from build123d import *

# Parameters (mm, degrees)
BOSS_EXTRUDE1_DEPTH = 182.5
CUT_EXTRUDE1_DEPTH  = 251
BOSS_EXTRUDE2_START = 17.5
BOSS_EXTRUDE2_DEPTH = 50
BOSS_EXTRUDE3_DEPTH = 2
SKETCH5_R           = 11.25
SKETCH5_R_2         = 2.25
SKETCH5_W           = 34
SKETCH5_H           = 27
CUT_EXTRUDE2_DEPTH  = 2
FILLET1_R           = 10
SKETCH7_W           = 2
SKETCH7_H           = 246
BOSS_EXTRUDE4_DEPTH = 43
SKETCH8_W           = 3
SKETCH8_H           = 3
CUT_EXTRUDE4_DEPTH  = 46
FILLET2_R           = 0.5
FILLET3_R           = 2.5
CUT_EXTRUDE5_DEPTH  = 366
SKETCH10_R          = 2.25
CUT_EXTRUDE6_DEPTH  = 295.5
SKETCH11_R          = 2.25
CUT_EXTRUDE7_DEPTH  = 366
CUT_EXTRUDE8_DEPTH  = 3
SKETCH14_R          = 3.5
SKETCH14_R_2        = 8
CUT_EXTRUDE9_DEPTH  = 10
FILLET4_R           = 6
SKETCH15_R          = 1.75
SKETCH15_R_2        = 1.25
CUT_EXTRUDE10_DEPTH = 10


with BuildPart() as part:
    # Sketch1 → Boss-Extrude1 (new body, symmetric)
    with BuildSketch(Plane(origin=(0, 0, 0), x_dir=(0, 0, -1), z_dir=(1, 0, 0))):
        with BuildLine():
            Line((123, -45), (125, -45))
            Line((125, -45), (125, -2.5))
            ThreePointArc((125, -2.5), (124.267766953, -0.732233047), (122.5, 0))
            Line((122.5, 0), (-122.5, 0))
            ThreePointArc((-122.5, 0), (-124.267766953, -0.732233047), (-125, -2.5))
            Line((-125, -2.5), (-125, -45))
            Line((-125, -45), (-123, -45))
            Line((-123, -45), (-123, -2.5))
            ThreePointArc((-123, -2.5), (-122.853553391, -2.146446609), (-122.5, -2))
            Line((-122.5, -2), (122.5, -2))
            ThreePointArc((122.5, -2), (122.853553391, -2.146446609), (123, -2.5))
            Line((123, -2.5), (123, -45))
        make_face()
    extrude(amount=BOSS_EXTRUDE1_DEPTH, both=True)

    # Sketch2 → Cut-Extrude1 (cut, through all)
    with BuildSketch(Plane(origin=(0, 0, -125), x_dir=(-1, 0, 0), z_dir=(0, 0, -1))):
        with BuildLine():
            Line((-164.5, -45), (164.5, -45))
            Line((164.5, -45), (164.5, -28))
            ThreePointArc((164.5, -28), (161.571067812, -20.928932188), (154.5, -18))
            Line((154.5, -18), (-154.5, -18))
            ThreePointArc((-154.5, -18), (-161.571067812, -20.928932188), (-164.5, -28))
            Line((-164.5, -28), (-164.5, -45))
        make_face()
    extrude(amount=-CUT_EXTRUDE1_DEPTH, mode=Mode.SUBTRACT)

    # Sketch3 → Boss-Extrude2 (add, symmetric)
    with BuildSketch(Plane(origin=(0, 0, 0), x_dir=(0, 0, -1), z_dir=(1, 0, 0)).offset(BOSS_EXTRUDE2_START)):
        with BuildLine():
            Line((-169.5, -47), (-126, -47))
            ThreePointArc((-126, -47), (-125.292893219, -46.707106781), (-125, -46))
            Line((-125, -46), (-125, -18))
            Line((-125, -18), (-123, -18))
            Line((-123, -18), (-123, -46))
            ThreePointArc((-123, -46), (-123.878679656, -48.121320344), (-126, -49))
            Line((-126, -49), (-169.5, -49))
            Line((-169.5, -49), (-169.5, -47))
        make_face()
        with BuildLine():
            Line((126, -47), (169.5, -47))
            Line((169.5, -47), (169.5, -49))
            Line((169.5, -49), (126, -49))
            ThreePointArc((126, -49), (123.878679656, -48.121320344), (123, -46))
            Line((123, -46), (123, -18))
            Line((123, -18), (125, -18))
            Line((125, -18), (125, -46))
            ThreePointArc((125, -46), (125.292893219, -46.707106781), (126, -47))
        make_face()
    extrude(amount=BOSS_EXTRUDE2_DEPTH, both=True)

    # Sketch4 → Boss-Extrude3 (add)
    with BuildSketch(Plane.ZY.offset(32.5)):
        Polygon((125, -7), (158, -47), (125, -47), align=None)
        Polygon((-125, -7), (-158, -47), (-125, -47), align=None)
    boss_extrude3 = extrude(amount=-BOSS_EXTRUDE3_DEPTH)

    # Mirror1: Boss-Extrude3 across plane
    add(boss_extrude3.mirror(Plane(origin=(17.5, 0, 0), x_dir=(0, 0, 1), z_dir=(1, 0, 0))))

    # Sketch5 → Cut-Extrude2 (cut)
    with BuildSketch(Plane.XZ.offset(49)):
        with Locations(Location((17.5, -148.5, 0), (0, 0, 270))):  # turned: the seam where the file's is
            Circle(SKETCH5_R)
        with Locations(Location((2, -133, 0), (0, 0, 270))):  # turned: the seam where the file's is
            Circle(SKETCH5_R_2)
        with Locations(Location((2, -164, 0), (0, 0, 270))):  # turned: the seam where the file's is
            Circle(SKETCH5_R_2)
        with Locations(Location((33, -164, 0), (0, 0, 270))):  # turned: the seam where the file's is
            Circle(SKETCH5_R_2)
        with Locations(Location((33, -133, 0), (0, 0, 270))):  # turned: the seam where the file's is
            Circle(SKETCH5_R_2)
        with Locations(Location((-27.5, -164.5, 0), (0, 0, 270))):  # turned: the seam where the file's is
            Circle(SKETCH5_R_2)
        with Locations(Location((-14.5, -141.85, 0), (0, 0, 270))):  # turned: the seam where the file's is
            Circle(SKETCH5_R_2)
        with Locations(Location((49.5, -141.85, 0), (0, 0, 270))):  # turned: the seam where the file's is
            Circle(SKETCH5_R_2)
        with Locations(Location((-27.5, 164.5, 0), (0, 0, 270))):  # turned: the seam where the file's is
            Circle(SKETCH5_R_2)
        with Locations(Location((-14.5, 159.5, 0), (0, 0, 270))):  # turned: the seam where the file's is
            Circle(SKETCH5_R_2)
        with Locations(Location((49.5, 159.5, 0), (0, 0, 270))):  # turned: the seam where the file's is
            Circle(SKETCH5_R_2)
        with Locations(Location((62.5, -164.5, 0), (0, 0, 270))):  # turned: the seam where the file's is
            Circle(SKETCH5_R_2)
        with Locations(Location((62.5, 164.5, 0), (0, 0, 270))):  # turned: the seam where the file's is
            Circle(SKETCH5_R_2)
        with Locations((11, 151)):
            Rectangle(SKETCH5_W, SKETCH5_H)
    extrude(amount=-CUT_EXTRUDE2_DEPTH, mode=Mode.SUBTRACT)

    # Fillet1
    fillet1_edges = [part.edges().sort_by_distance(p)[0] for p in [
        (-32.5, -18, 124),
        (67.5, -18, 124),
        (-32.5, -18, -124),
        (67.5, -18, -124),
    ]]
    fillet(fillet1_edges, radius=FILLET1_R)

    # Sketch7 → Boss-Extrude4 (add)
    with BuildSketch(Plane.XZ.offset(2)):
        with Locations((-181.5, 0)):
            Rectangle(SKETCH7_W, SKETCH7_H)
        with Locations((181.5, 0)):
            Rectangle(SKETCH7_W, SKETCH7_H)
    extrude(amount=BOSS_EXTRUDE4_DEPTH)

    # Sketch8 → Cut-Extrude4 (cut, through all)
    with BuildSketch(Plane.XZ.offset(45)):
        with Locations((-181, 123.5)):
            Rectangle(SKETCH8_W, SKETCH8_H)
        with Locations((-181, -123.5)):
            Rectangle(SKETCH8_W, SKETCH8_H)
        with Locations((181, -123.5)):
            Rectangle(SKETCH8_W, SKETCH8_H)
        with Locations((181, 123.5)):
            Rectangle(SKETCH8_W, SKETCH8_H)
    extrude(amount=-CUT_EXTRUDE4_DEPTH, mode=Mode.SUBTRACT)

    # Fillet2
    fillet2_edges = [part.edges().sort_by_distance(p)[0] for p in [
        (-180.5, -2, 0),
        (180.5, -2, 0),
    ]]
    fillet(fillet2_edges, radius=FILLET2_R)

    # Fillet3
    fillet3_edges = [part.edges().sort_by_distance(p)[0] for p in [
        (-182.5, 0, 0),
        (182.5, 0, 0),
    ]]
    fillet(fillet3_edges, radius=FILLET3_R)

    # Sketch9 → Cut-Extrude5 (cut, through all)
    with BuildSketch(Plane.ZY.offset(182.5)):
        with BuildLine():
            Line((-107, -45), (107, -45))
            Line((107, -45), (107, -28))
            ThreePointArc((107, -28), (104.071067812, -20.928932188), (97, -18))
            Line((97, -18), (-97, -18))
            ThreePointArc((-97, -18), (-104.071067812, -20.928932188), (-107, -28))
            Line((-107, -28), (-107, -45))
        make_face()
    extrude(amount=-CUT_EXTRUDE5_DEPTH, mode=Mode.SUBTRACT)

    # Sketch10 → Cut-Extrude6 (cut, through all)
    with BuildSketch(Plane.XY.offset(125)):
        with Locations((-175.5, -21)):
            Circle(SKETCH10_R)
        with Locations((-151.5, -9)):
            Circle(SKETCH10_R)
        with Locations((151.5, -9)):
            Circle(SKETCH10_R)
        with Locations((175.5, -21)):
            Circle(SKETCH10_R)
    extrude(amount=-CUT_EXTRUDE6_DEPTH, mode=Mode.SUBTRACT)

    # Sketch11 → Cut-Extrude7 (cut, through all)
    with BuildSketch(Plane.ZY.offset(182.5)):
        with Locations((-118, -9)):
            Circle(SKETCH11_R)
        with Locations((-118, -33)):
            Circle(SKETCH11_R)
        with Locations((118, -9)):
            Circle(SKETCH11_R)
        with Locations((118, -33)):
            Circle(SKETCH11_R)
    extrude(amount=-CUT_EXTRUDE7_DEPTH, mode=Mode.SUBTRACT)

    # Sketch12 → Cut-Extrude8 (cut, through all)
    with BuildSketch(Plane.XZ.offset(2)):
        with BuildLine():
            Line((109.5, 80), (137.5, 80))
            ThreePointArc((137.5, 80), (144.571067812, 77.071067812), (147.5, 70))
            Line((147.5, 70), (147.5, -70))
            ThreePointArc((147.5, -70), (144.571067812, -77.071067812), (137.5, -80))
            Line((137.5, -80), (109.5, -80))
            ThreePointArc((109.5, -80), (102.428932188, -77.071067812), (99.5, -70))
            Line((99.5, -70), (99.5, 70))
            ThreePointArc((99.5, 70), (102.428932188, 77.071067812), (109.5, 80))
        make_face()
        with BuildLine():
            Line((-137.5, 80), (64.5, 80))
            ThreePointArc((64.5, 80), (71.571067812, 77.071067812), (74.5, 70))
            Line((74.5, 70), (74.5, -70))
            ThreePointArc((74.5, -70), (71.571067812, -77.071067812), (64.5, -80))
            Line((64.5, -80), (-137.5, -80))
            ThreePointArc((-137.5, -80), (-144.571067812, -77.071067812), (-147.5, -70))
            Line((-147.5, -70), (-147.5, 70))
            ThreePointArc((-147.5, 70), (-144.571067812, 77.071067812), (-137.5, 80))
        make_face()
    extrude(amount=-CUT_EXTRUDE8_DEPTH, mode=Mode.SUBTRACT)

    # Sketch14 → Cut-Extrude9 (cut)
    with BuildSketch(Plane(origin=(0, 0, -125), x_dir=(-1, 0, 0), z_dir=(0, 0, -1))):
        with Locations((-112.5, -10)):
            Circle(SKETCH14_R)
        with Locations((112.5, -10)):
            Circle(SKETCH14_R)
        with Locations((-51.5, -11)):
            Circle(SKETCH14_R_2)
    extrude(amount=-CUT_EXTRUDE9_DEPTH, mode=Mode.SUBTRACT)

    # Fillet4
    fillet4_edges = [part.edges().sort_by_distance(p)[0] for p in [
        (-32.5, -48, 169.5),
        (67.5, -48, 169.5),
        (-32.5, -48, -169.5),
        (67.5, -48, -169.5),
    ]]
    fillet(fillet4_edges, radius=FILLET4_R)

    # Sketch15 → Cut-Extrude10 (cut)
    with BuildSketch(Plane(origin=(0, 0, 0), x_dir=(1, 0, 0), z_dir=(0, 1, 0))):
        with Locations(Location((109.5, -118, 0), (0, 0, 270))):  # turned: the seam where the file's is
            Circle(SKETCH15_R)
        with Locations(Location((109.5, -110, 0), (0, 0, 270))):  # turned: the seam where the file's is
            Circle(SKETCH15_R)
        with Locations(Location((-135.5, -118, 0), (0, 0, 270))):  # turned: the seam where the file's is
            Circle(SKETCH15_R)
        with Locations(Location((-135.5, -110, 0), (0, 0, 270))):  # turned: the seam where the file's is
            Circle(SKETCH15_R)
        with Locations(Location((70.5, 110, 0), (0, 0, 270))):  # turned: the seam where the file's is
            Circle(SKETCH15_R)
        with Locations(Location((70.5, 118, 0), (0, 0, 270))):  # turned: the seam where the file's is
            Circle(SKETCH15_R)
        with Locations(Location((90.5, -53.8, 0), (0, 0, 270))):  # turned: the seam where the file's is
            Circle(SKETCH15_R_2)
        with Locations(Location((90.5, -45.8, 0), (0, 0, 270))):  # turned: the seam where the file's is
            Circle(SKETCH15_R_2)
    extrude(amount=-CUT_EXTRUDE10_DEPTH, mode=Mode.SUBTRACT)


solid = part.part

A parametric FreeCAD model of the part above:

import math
import FreeCAD as App
import Part
import Sketcher

V = App.Vector


def edges_at(feature, points):
    """Names of the edges that pass closest to the given points."""
    edges = feature.Shape.Edges
    near = lambda p: min(range(len(edges)), key=lambda i: edges[i].distToShape(Part.Vertex(*p))[0])
    return sorted({f"Edge{near(p) + 1}" for p in points})

doc = App.newDocument("Part")
params = doc.addObject("Spreadsheet::Sheet", "Params")
for row, (alias, value) in enumerate([
    ("sketch1_radius", "2.5 mm"),
    ("sketch1_radius2", "0.5 mm"),
    ("sketch1_height", "245 mm"),
    ("sketch1_width", "42.5 mm"),
    ("pad1_length", "365 mm"),
    ("sketch2_radius", "10 mm"),
    ("sketch2_width", "329 mm"),
    ("sketch2_height", "17 mm"),
    ("sketch3_radius", "3 mm"),
    ("sketch3_radius2", "1 mm"),
    ("sketch3_width", "28 mm"),
    ("sketch3_height", "43.5 mm"),
    ("pad2_length", "100 mm"),
    ("sketch4_width", "40 mm"),
    ("sketch4_height", "33 mm"),
    ("pad3_length", "2 mm"),
    ("sketch5_diameter", "22.5 mm"),
    ("sketch5_diameter2", "4.5 mm"),
    ("sketch5_width", "34 mm"),
    ("sketch5_height", "27 mm"),
    ("pocket2_length", "2 mm"),
    ("fillet_radius", "10 mm"),
    ("sketch6_width", "2 mm"),
    ("sketch6_height", "246 mm"),
    ("pad4_length", "43 mm"),
    ("sketch7_width", "3 mm"),
    ("fillet2_radius", "0.5 mm"),
    ("fillet3_radius", "2.5 mm"),
    ("sketch8_radius", "10 mm"),
    ("sketch8_width", "17 mm"),
    ("sketch8_height", "214 mm"),
    ("sketch9_diameter", "4.5 mm"),
    ("sketch10_diameter", "4.5 mm"),
    ("sketch11_radius", "10 mm"),
    ("sketch11_width", "28 mm"),
    ("sketch11_width2", "202 mm"),
    ("sketch11_height", "140 mm"),
    ("sketch12_diameter", "7 mm"),
    ("sketch12_diameter2", "16 mm"),
    ("pocket8_length", "10 mm"),
    ("fillet4_radius", "6 mm"),
    ("sketch13_diameter", "3.5 mm"),
    ("sketch13_diameter2", "2.5 mm"),
    ("pocket9_length", "10 mm"),
], start=1):
    params.set(f"A{row}", alias)
    params.set(f"B{row}", "=" + value)
    params.setAlias(f"B{row}", alias)

body = doc.addObject("PartDesign::Body", "Body")

sketch1 = body.newObject("Sketcher::SketchObject", "Sketch")
sketch1.AttachmentSupport = (doc.getObject("YZ_Plane"), [""])
sketch1.MapMode = "FlatFace"
sketch1.addGeometry([
    Part.LineSegment(V(-45, -123, 0), V(-45, -125, 0)),
    Part.LineSegment(V(-45, -125, 0), V(-2.5, -125, 0)),
    Part.ArcOfCircle(Part.Circle(V(-2.5, -122.5, 0), V(0, 0, 1), 2.5), math.radians(-90), math.radians(0)),
    Part.LineSegment(V(0, -122.5, 0), V(0, 122.5, 0)),
    Part.ArcOfCircle(Part.Circle(V(-2.5, 122.5, 0), V(0, 0, 1), 2.5), math.radians(0), math.radians(90)),
    Part.LineSegment(V(-2.5, 125, 0), V(-45, 125, 0)),
    Part.LineSegment(V(-45, 125, 0), V(-45, 123, 0)),
    Part.LineSegment(V(-45, 123, 0), V(-2.5, 123, 0)),
    Part.ArcOfCircle(Part.Circle(V(-2.5, 122.5, 0), V(0, 0, 1), 0.5), math.radians(0), math.radians(90)),
    Part.LineSegment(V(-2, 122.5, 0), V(-2, -122.5, 0)),
    Part.ArcOfCircle(Part.Circle(V(-2.5, -122.5, 0), V(0, 0, 1), 0.5), math.radians(-90), math.radians(0)),
    Part.LineSegment(V(-2.5, -123, 0), V(-45, -123, 0)),
], False)
sketch1.addConstraint([
    Sketcher.Constraint("Coincident", 0, 2, 1, 1),
    Sketcher.Constraint("Tangent", 1, 2, 2, 1),
    Sketcher.Constraint("Tangent", 2, 2, 3, 1),
    Sketcher.Constraint("Tangent", 3, 2, 4, 1),
    Sketcher.Constraint("Tangent", 4, 2, 5, 1),
    Sketcher.Constraint("Coincident", 5, 2, 6, 1),
    Sketcher.Constraint("Coincident", 6, 2, 7, 1),
    Sketcher.Constraint("Tangent", 7, 2, 8, 2),
    Sketcher.Constraint("Tangent", 8, 1, 9, 1),
    Sketcher.Constraint("Tangent", 9, 2, 10, 2),
    Sketcher.Constraint("Tangent", 10, 1, 11, 1),
    Sketcher.Constraint("Coincident", 11, 2, 0, 1),
    Sketcher.Constraint("Vertical", 0),
    Sketcher.Constraint("Horizontal", 1),
    Sketcher.Constraint("Vertical", 3),
    Sketcher.Constraint("Horizontal", 5),
    Sketcher.Constraint("Vertical", 6),
    Sketcher.Constraint("Horizontal", 7),
    Sketcher.Constraint("Vertical", 9),
    Sketcher.Constraint("Horizontal", 11),
    Sketcher.Constraint("Coincident", 8, 3, 4, 3),
    Sketcher.Constraint("Coincident", 10, 3, 2, 3),
    Sketcher.Constraint("Equal", 2, 4),
    Sketcher.Constraint("Symmetric", 2, 2, 3, 2, -1, 1),
    Sketcher.Constraint("Vertical", 0, 2, 5, 2),
    Sketcher.Constraint("Radius", 2, 2.5),
    Sketcher.Constraint("Radius", 8, 0.5),
    Sketcher.Constraint("DistanceY", 3, 1, 3, 2, 245.0),
    Sketcher.Constraint("DistanceX", 1, 1, 1, 2, 42.5),
])
sketch1.setExpression("Constraints[25]", "Params.sketch1_radius")
sketch1.setExpression("Constraints[26]", "Params.sketch1_radius2")
sketch1.setExpression("Constraints[27]", "Params.sketch1_height")
sketch1.setExpression("Constraints[28]", "Params.sketch1_width")
pad1 = body.newObject("PartDesign::Pad", "Pad")
pad1.Profile = sketch1
pad1.setExpression("Length", "Params.pad1_length")
pad1.Midplane = True

sketch2 = body.newObject("Sketcher::SketchObject", "Sketch001")
sketch2.AttachmentSupport = (doc.getObject("XY_Plane"), [""])
sketch2.MapMode = "FlatFace"
sketch2.AttachmentOffset = App.Placement(V(0, 0, -125), App.Rotation())
sketch2.addGeometry([
    Part.LineSegment(V(164, -45, 0), V(-164, -45, 0)),
    Part.LineSegment(V(-164, -45, 0), V(-164, -28, 0)),
    Part.ArcOfCircle(Part.Circle(V(-154, -28, 0), V(0, 0, 1), 10), math.radians(90), math.radians(180)),
    Part.LineSegment(V(-154, -18, 0), V(154, -18, 0)),
    Part.ArcOfCircle(Part.Circle(V(154, -28, 0), V(0, 0, 1), 10), math.radians(0), math.radians(90)),
    Part.LineSegment(V(164, -28, 0), V(164, -45, 0)),
], False)
sketch2.addConstraint([
    Sketcher.Constraint("Coincident", 0, 2, 1, 1),
    Sketcher.Constraint("Tangent", 1, 2, 2, 2),
    Sketcher.Constraint("Tangent", 2, 1, 3, 1),
    Sketcher.Constraint("Tangent", 3, 2, 4, 2),
    Sketcher.Constraint("Tangent", 4, 1, 5, 1),
    Sketcher.Constraint("Coincident", 5, 2, 0, 1),
    Sketcher.Constraint("Horizontal", 0),
    Sketcher.Constraint("Vertical", 1),
    Sketcher.Constraint("Horizontal", 3),
    Sketcher.Constraint("Vertical", 5),
    Sketcher.Constraint("Equal", 2, 4),
    Sketcher.Constraint("Radius", 2, 10.0),
    Sketcher.Constraint("DistanceX", 0, 2, 0, 1, 329.0),
    Sketcher.Constraint("DistanceY", 1, 1, 1, 2, 17.0),
    Sketcher.Constraint("DistanceY", 2, 3, -1, 1, 28.0),
    Sketcher.Constraint("DistanceX", 2, 3, -1, 1, 154.5),
])
sketch2.setExpression("Constraints[11]", "Params.sketch2_radius")
sketch2.setExpression("Constraints[12]", "Params.sketch2_width")
sketch2.setExpression("Constraints[13]", "Params.sketch2_height")
pocket1 = body.newObject("PartDesign::Pocket", "Pocket")
pocket1.Profile = sketch2
pocket1.Type = "ThroughAll"
pocket1.Reversed = True

sketch3 = body.newObject("Sketcher::SketchObject", "Sketch002")
sketch3.AttachmentSupport = (doc.getObject("YZ_Plane"), [""])
sketch3.MapMode = "FlatFace"
sketch3.AttachmentOffset = App.Placement(V(0, 0, 17.5), App.Rotation())
sketch3.addGeometry([
    Part.LineSegment(V(-47, 126, 0), V(-47, 169.5, 0)),
    Part.LineSegment(V(-47, 169.5, 0), V(-49, 169.5, 0)),
    Part.LineSegment(V(-49, 169.5, 0), V(-49, 126, 0)),
    Part.ArcOfCircle(Part.Circle(V(-46, 126, 0), V(0, 0, 1), 3), math.radians(180), math.radians(270)),
    Part.LineSegment(V(-46, 123, 0), V(-18, 123, 0)),
    Part.LineSegment(V(-18, 123, 0), V(-18, 125, 0)),
    Part.LineSegment(V(-18, 125, 0), V(-46, 125, 0)),
    Part.ArcOfCircle(Part.Circle(V(-46, 126, 0), V(0, 0, 1), 1), math.radians(-180), math.radians(-90)),
    Part.LineSegment(V(-47, -169.5, 0), V(-47, -126, 0)),
    Part.ArcOfCircle(Part.Circle(V(-46, -126, 0), V(0, 0, 1), 1), math.radians(90), math.radians(180)),
    Part.LineSegment(V(-46, -125, 0), V(-18, -125, 0)),
    Part.LineSegment(V(-18, -125, 0), V(-18, -123, 0)),
    Part.LineSegment(V(-18, -123, 0), V(-46, -123, 0)),
    Part.ArcOfCircle(Part.Circle(V(-46, -126, 0), V(0, 0, 1), 3), math.radians(90), math.radians(180)),
    Part.LineSegment(V(-49, -126, 0), V(-49, -169.5, 0)),
    Part.LineSegment(V(-49, -169.5, 0), V(-47, -169.5, 0)),
], False)
sketch3.addConstraint([
    Sketcher.Constraint("Coincident", 0, 2, 1, 1),
    Sketcher.Constraint("Coincident", 1, 2, 2, 1),
    Sketcher.Constraint("Tangent", 2, 2, 3, 1),
    Sketcher.Constraint("Tangent", 3, 2, 4, 1),
    Sketcher.Constraint("Coincident", 4, 2, 5, 1),
    Sketcher.Constraint("Coincident", 5, 2, 6, 1),
    Sketcher.Constraint("Tangent", 6, 2, 7, 2),
    Sketcher.Constraint("Tangent", 7, 1, 0, 1),
    Sketcher.Constraint("Tangent", 8, 2, 9, 2),
    Sketcher.Constraint("Tangent", 9, 1, 10, 1),
    Sketcher.Constraint("Coincident", 10, 2, 11, 1),
    Sketcher.Constraint("Coincident", 11, 2, 12, 1),
    Sketcher.Constraint("Tangent", 12, 2, 13, 1),
    Sketcher.Constraint("Tangent", 13, 2, 14, 1),
    Sketcher.Constraint("Coincident", 14, 2, 15, 1),
    Sketcher.Constraint("Coincident", 15, 2, 8, 1),
    Sketcher.Constraint("Vertical", 0),
    Sketcher.Constraint("Horizontal", 1),
    Sketcher.Constraint("Vertical", 2),
    Sketcher.Constraint("Horizontal", 4),
    Sketcher.Constraint("Vertical", 5),
    Sketcher.Constraint("Horizontal", 6),
    Sketcher.Constraint("Vertical", 8),
    Sketcher.Constraint("Horizontal", 10),
    Sketcher.Constraint("Vertical", 11),
    Sketcher.Constraint("Horizontal", 12),
    Sketcher.Constraint("Vertical", 14),
    Sketcher.Constraint("Horizontal", 15),
    Sketcher.Constraint("Coincident", 7, 3, 3, 3),
    Sketcher.Constraint("Coincident", 13, 3, 9, 3),
    Sketcher.Constraint("Equal", 7, 9),
    Sketcher.Constraint("Equal", 3, 13),
    Sketcher.Constraint("Symmetric", 3, 3, 9, 3, -1),
    Sketcher.Constraint("Vertical", 5, 2, 10, 2),
    Sketcher.Constraint("Equal", 2, 8),
    Sketcher.Constraint("Radius", 3, 3.0),
    Sketcher.Constraint("Radius", 7, 1.0),
    Sketcher.Constraint("DistanceX", 4, 1, 4, 2, 28.0),
    Sketcher.Constraint("DistanceY", 0, 1, 0, 2, 43.5),
    Sketcher.Constraint("DistanceX", 3, 3, -1, 1, 46.0),
    Sketcher.Constraint("DistanceY", -1, 1, 3, 3, 126.0),
])
sketch3.setExpression("Constraints[35]", "Params.sketch3_radius")
sketch3.setExpression("Constraints[36]", "Params.sketch3_radius2")
sketch3.setExpression("Constraints[37]", "Params.sketch3_width")
sketch3.setExpression("Constraints[38]", "Params.sketch3_height")
pad2 = body.newObject("PartDesign::Pad", "Pad001")
pad2.Profile = sketch3
pad2.setExpression("Length", "Params.pad2_length")
pad2.Midplane = True

sketch4 = body.newObject("Sketcher::SketchObject", "Sketch003")
sketch4.AttachmentSupport = (doc.getObject("YZ_Plane"), [""])
sketch4.MapMode = "FlatFace"
sketch4.AttachmentOffset = App.Placement(V(0, 0, -32.5), App.Rotation())
sketch4.addGeometry([
    Part.LineSegment(V(-47, 158, 0), V(-7, 125, 0)),
    Part.LineSegment(V(-7, 125, 0), V(-47, 125, 0)),
    Part.LineSegment(V(-47, 125, 0), V(-47, 158, 0)),
    Part.LineSegment(V(-7, -125, 0), V(-47, -158, 0)),
    Part.LineSegment(V(-47, -158, 0), V(-47, -125, 0)),
    Part.LineSegment(V(-47, -125, 0), V(-7, -125, 0)),
], False)
sketch4.addConstraint([
    Sketcher.Constraint("Coincident", 0, 2, 1, 1),
    Sketcher.Constraint("Coincident", 1, 2, 2, 1),
    Sketcher.Constraint("Coincident", 2, 2, 0, 1),
    Sketcher.Constraint("Coincident", 3, 2, 4, 1),
    Sketcher.Constraint("Coincident", 4, 2, 5, 1),
    Sketcher.Constraint("Coincident", 5, 2, 3, 1),
    Sketcher.Constraint("Horizontal", 1),
    Sketcher.Constraint("Vertical", 2),
    Sketcher.Constraint("Vertical", 4),
    Sketcher.Constraint("Horizontal", 5),
    Sketcher.Constraint("Symmetric", 2, 2, 3, 2, -1),
    Sketcher.Constraint("Symmetric", 0, 2, 5, 2, -1),
    Sketcher.Constraint("DistanceX", 1, 2, 1, 1, 40.0),
    Sketcher.Constraint("DistanceY", 2, 1, 2, 2, 33.0),
    Sketcher.Constraint("DistanceX", 0, 2, -1, 1, 7.0),
    Sketcher.Constraint("DistanceY", -1, 1, 0, 2, 125.0),
])
sketch4.setExpression("Constraints[12]", "Params.sketch4_width")
sketch4.setExpression("Constraints[13]", "Params.sketch4_height")
pad3 = body.newObject("PartDesign::Pad", "Pad002")
pad3.Profile = sketch4
pad3.setExpression("Length", "Params.pad3_length")
doc.recompute()

datumplane = body.newObject("PartDesign::Plane", "DatumPlane")
datumplane.AttachmentSupport = (doc.getObject("YZ_Plane"), [""])
datumplane.MapMode = "FlatFace"
datumplane.AttachmentOffset = App.Placement(V(0, 0, 17.5), App.Rotation())
mirrored = body.newObject("PartDesign::Mirrored", "Mirrored")
mirrored.Originals = [pad3]
mirrored.MirrorPlane = (datumplane, [""])
body.Tip = mirrored

sketch5 = body.newObject("Sketcher::SketchObject", "Sketch004")
sketch5.AttachmentSupport = (doc.getObject("XZ_Plane"), [""])
sketch5.MapMode = "FlatFace"
sketch5.AttachmentOffset = App.Placement(V(0, 0, 49), App.Rotation())
sketch5.addGeometry([
    Part.Circle(V(17.5, -148.5, 0), V(0, 0, 1), 11.2),
    Part.Circle(V(2, -133, 0), V(0, 0, 1), 2.2),
    Part.Circle(V(2, -164, 0), V(0, 0, 1), 2.2),
    Part.Circle(V(33, -164, 0), V(0, 0, 1), 2.2),
    Part.Circle(V(33, -133, 0), V(0, 0, 1), 2.2),
    Part.Circle(V(-27.5, -164.5, 0), V(0, 0, 1), 2.2),
    Part.Circle(V(-14.5, -141.8, 0), V(0, 0, 1), 2.2),
    Part.Circle(V(49.5, -141.8, 0), V(0, 0, 1), 2.2),
    Part.Circle(V(-27.5, 164.5, 0), V(0, 0, 1), 2.2),
    Part.Circle(V(-14.5, 159.5, 0), V(0, 0, 1), 2.2),
    Part.Circle(V(49.5, 159.5, 0), V(0, 0, 1), 2.2),
    Part.Circle(V(62.5, -164.5, 0), V(0, 0, 1), 2.2),
    Part.Circle(V(62.5, 164.5, 0), V(0, 0, 1), 2.2),
    Part.LineSegment(V(-6, 164.5, 0), V(-6, 137.5, 0)),
    Part.LineSegment(V(-6, 137.5, 0), V(28, 137.5, 0)),
    Part.LineSegment(V(28, 137.5, 0), V(28, 164.5, 0)),
    Part.LineSegment(V(28, 164.5, 0), V(-6, 164.5, 0)),
], False)
sketch5.addConstraint([
    Sketcher.Constraint("Coincident", 13, 2, 14, 1),
    Sketcher.Constraint("Coincident", 14, 2, 15, 1),
    Sketcher.Constraint("Coincident", 15, 2, 16, 1),
    Sketcher.Constraint("Coincident", 16, 2, 13, 1),
    Sketcher.Constraint("Vertical", 13),
    Sketcher.Constraint("Horizontal", 14),
    Sketcher.Constraint("Vertical", 15),
    Sketcher.Constraint("Horizontal", 16),
    Sketcher.Constraint("Equal", 1, 2),
    Sketcher.Constraint("Equal", 2, 3),
    Sketcher.Constraint("Equal", 3, 4),
    Sketcher.Constraint("Equal", 4, 5),
    Sketcher.Constraint("Equal", 5, 6),
    Sketcher.Constraint("Equal", 6, 7),
    Sketcher.Constraint("Equal", 7, 8),
    Sketcher.Constraint("Equal", 8, 9),
    Sketcher.Constraint("Equal", 9, 10),
    Sketcher.Constraint("Equal", 10, 11),
    Sketcher.Constraint("Equal", 11, 12),
    Sketcher.Constraint("Symmetric", 5, 3, 8, 3, -1),
    Sketcher.Constraint("Symmetric", 11, 3, 12, 3, -1),
    Sketcher.Constraint("Horizontal", 2, 3, 3, 3),
    Sketcher.Constraint("Horizontal", 1, 3, 4, 3),
    Sketcher.Constraint("Horizontal", 6, 3, 7, 3),
    Sketcher.Constraint("Horizontal", 9, 3, 10, 3),
    Sketcher.Constraint("Horizontal", 5, 3, 11, 3),
    Sketcher.Constraint("Horizontal", 12, 3, 15, 2),
    Sketcher.Constraint("Vertical", 1, 3, 2, 3),
    Sketcher.Constraint("Vertical", 3, 3, 4, 3),
    Sketcher.Constraint("Vertical", 6, 3, 9, 3),
    Sketcher.Constraint("Vertical", 7, 3, 10, 3),
    Sketcher.Constraint("Diameter", 0, 22.5),
    Sketcher.Constraint("Diameter", 1, 4.5),
    Sketcher.Constraint("DistanceX", 14, 1, 14, 2, 34.0),
    Sketcher.Constraint("DistanceY", 13, 2, 13, 1, 27.0),
    Sketcher.Constraint("DistanceX", -1, 1, 1, 3, 2.0),
    Sketcher.Constraint("DistanceY", 1, 3, -1, 1, 133.0),
    Sketcher.Constraint("DistanceY", 2, 3, -1, 1, 164.0),
    Sketcher.Constraint("DistanceX", -1, 1, 3, 3, 33.0),
    Sketcher.Constraint("DistanceX", 13, 2, -1, 1, 6.0),
    Sketcher.Constraint("DistanceX", 5, 3, 0, 3, 45.0),
    Sketcher.Constraint("DistanceY", 5, 3, 0, 3, 16.0),
    Sketcher.Constraint("DistanceX", 5, 3, 6, 3, 13.0),
    Sketcher.Constraint("DistanceX", 0, 3, 7, 3, 32.0),
    Sketcher.Constraint("DistanceY", 0, 3, 8, 3, 313.0),
    Sketcher.Constraint("DistanceY", 9, 3, 8, 3, 5.0),
    Sketcher.Constraint("DistanceX", 7, 3, 11, 3, 13.0),
    Sketcher.Constraint("DistanceX", -1, 1, 0, 3, 17.5),
    Sketcher.Constraint("DistanceY", 6, 3, -1, 1, 141.85),
])
sketch5.setExpression("Constraints[31]", "Params.sketch5_diameter")
sketch5.setExpression("Constraints[32]", "Params.sketch5_diameter2")
sketch5.setExpression("Constraints[33]", "Params.sketch5_width")
sketch5.setExpression("Constraints[34]", "Params.sketch5_height")
pocket2 = body.newObject("PartDesign::Pocket", "Pocket001")
pocket2.Profile = sketch5
pocket2.setExpression("Length", "Params.pocket2_length")
doc.recompute()

fillet = body.newObject("PartDesign::Fillet", "Fillet")
fillet.Base = (pocket2, edges_at(pocket2, [
    (-32.5, -18, 124),
    (67.5, -18, 124),
    (-32.5, -18, -124),
    (67.5, -18, -124),
]))
fillet.setExpression("Radius", "Params.fillet_radius")

sketch6 = body.newObject("Sketcher::SketchObject", "Sketch005")
sketch6.AttachmentSupport = (doc.getObject("XZ_Plane"), [""])
sketch6.MapMode = "FlatFace"
sketch6.AttachmentOffset = App.Placement(V(0, 0, 2), App.Rotation())
sketch6.addGeometry([
    Part.LineSegment(V(-182.5, 123, 0), V(-182.5, -123, 0)),
    Part.LineSegment(V(-182.5, -123, 0), V(-180.5, -123, 0)),
    Part.LineSegment(V(-180.5, -123, 0), V(-180.5, 123, 0)),
    Part.LineSegment(V(-180.5, 123, 0), V(-182.5, 123, 0)),
    Part.LineSegment(V(180.5, 123, 0), V(180.5, -123, 0)),
    Part.LineSegment(V(180.5, -123, 0), V(182.5, -123, 0)),
    Part.LineSegment(V(182.5, -123, 0), V(182.5, 123, 0)),
    Part.LineSegment(V(182.5, 123, 0), V(180.5, 123, 0)),
], False)
sketch6.addConstraint([
    Sketcher.Constraint("Coincident", 0, 2, 1, 1),
    Sketcher.Constraint("Coincident", 1, 2, 2, 1),
    Sketcher.Constraint("Coincident", 2, 2, 3, 1),
    Sketcher.Constraint("Coincident", 3, 2, 0, 1),
    Sketcher.Constraint("Coincident", 4, 2, 5, 1),
    Sketcher.Constraint("Coincident", 5, 2, 6, 1),
    Sketcher.Constraint("Coincident", 6, 2, 7, 1),
    Sketcher.Constraint("Coincident", 7, 2, 4, 1),
    Sketcher.Constraint("Vertical", 0),
    Sketcher.Constraint("Horizontal", 1),
    Sketcher.Constraint("Vertical", 2),
    Sketcher.Constraint("Horizontal", 3),
    Sketcher.Constraint("Vertical", 4),
    Sketcher.Constraint("Horizontal", 5),
    Sketcher.Constraint("Vertical", 6),
    Sketcher.Constraint("Horizontal", 7),
    Sketcher.Constraint("Symmetric", 2, 2, 4, 2, -1, 1),
    Sketcher.Constraint("Symmetric", 0, 2, 6, 2, -1, 1),
    Sketcher.Constraint("Horizontal", 1, 2, 4, 2),
    Sketcher.Constraint("DistanceX", 1, 1, 1, 2, 2.0),
    Sketcher.Constraint("DistanceY", 0, 2, 0, 1, 246.0),
    Sketcher.Constraint("DistanceX", 1, 2, 4, 2, 361.0),
])
sketch6.setExpression("Constraints[19]", "Params.sketch6_width")
sketch6.setExpression("Constraints[20]", "Params.sketch6_height")
pad4 = body.newObject("PartDesign::Pad", "Pad003")
pad4.Profile = sketch6
pad4.setExpression("Length", "Params.pad4_length")

sketch7 = body.newObject("Sketcher::SketchObject", "Sketch006")
sketch7.AttachmentSupport = (doc.getObject("XZ_Plane"), [""])
sketch7.MapMode = "FlatFace"
sketch7.AttachmentOffset = App.Placement(V(0, 0, 45), App.Rotation())
sketch7.addGeometry([
    Part.LineSegment(V(-182.5, 125, 0), V(-182.5, 122, 0)),
    Part.LineSegment(V(-182.5, 122, 0), V(-179.5, 122, 0)),
    Part.LineSegment(V(-179.5, 122, 0), V(-179.5, 125, 0)),
    Part.LineSegment(V(-179.5, 125, 0), V(-182.5, 125, 0)),
    Part.LineSegment(V(-182.5, -122, 0), V(-182.5, -125, 0)),
    Part.LineSegment(V(-182.5, -125, 0), V(-179.5, -125, 0)),
    Part.LineSegment(V(-179.5, -125, 0), V(-179.5, -122, 0)),
    Part.LineSegment(V(-179.5, -122, 0), V(-182.5, -122, 0)),
    Part.LineSegment(V(179.5, -122, 0), V(179.5, -125, 0)),
    Part.LineSegment(V(179.5, -125, 0), V(182.5, -125, 0)),
    Part.LineSegment(V(182.5, -125, 0), V(182.5, -122, 0)),
    Part.LineSegment(V(182.5, -122, 0), V(179.5, -122, 0)),
    Part.LineSegment(V(179.5, 125, 0), V(179.5, 122, 0)),
    Part.LineSegment(V(179.5, 122, 0), V(182.5, 122, 0)),
    Part.LineSegment(V(182.5, 122, 0), V(182.5, 125, 0)),
    Part.LineSegment(V(182.5, 125, 0), V(179.5, 125, 0)),
], False)
sketch7.addConstraint([
    Sketcher.Constraint("Coincident", 0, 2, 1, 1),
    Sketcher.Constraint("Coincident", 1, 2, 2, 1),
    Sketcher.Constraint("Coincident", 2, 2, 3, 1),
    Sketcher.Constraint("Coincident", 3, 2, 0, 1),
    Sketcher.Constraint("Coincident", 4, 2, 5, 1),
    Sketcher.Constraint("Coincident", 5, 2, 6, 1),
    Sketcher.Constraint("Coincident", 6, 2, 7, 1),
    Sketcher.Constraint("Coincident", 7, 2, 4, 1),
    Sketcher.Constraint("Coincident", 8, 2, 9, 1),
    Sketcher.Constraint("Coincident", 9, 2, 10, 1),
    Sketcher.Constraint("Coincident", 10, 2, 11, 1),
    Sketcher.Constraint("Coincident", 11, 2, 8, 1),
    Sketcher.Constraint("Coincident", 12, 2, 13, 1),
    Sketcher.Constraint("Coincident", 13, 2, 14, 1),
    Sketcher.Constraint("Coincident", 14, 2, 15, 1),
    Sketcher.Constraint("Coincident", 15, 2, 12, 1),
    Sketcher.Constraint("Vertical", 0),
    Sketcher.Constraint("Horizontal", 1),
    Sketcher.Constraint("Vertical", 2),
    Sketcher.Constraint("Horizontal", 3),
    Sketcher.Constraint("Vertical", 4),
    Sketcher.Constraint("Horizontal", 5),
    Sketcher.Constraint("Vertical", 6),
    Sketcher.Constraint("Horizontal", 7),
    Sketcher.Constraint("Vertical", 8),
    Sketcher.Constraint("Horizontal", 9),
    Sketcher.Constraint("Vertical", 10),
    Sketcher.Constraint("Horizontal", 11),
    Sketcher.Constraint("Vertical", 12),
    Sketcher.Constraint("Horizontal", 13),
    Sketcher.Constraint("Vertical", 14),
    Sketcher.Constraint("Horizontal", 15),
    Sketcher.Constraint("Symmetric", 2, 2, 8, 2, -1, 1),
    Sketcher.Constraint("Symmetric", 0, 2, 10, 2, -1, 1),
    Sketcher.Constraint("Symmetric", 6, 2, 12, 2, -1, 1),
    Sketcher.Constraint("Symmetric", 4, 2, 14, 2, -1, 1),
    Sketcher.Constraint("Symmetric", 5, 2, 8, 2, -2),
    Sketcher.Constraint("Symmetric", 7, 2, 10, 2, -2),
    Sketcher.Constraint("Equal", 15, 0),
    Sketcher.Constraint("DistanceX", 1, 1, 1, 2, 3.0),
    Sketcher.Constraint("DistanceY", -1, 1, 0, 2, 122.0),
    Sketcher.Constraint("DistanceX", 5, 2, 8, 2, 359.0),
])
sketch7.setExpression("Constraints[39]", "Params.sketch7_width")
pocket3 = body.newObject("PartDesign::Pocket", "Pocket002")
pocket3.Profile = sketch7
pocket3.Type = "ThroughAll"
doc.recompute()

fillet2 = body.newObject("PartDesign::Fillet", "Fillet001")
fillet2.Base = (pocket3, edges_at(pocket3, [(-180.5, -2, 0), (180.5, -2, 0)]))
fillet2.setExpression("Radius", "Params.fillet2_radius")
doc.recompute()

fillet3 = body.newObject("PartDesign::Fillet", "Fillet002")
fillet3.Base = (fillet2, edges_at(fillet2, [(-182.5, 0, 0), (182.5, 0, 0)]))
fillet3.setExpression("Radius", "Params.fillet3_radius")

sketch8 = body.newObject("Sketcher::SketchObject", "Sketch007")
sketch8.AttachmentSupport = (doc.getObject("YZ_Plane"), [""])
sketch8.MapMode = "FlatFace"
sketch8.AttachmentOffset = App.Placement(V(0, 0, -182.5), App.Rotation())
sketch8.addGeometry([
    Part.LineSegment(V(-45, -107, 0), V(-45, 107, 0)),
    Part.LineSegment(V(-45, 107, 0), V(-28, 107, 0)),
    Part.ArcOfCircle(Part.Circle(V(-28, 97, 0), V(0, 0, 1), 10), math.radians(0), math.radians(90)),
    Part.LineSegment(V(-18, 97, 0), V(-18, -97, 0)),
    Part.ArcOfCircle(Part.Circle(V(-28, -97, 0), V(0, 0, 1), 10), math.radians(-90), math.radians(0)),
    Part.LineSegment(V(-28, -107, 0), V(-45, -107, 0)),
], False)
sketch8.addConstraint([
    Sketcher.Constraint("Coincident", 0, 2, 1, 1),
    Sketcher.Constraint("Tangent", 1, 2, 2, 2),
    Sketcher.Constraint("Tangent", 2, 1, 3, 1),
    Sketcher.Constraint("Tangent", 3, 2, 4, 2),
    Sketcher.Constraint("Tangent", 4, 1, 5, 1),
    Sketcher.Constraint("Coincident", 5, 2, 0, 1),
    Sketcher.Constraint("Vertical", 0),
    Sketcher.Constraint("Horizontal", 1),
    Sketcher.Constraint("Vertical", 3),
    Sketcher.Constraint("Horizontal", 5),
    Sketcher.Constraint("Equal", 2, 4),
    Sketcher.Constraint("Radius", 2, 10.0),
    Sketcher.Constraint("DistanceX", 1, 1, 1, 2, 17.0),
    Sketcher.Constraint("DistanceY", 0, 1, 0, 2, 214.0),
    Sketcher.Constraint("DistanceX", 2, 3, -1, 1, 28.0),
    Sketcher.Constraint("DistanceY", -1, 1, 2, 3, 97.0),
])
sketch8.setExpression("Constraints[11]", "Params.sketch8_radius")
sketch8.setExpression("Constraints[12]", "Params.sketch8_width")
sketch8.setExpression("Constraints[13]", "Params.sketch8_height")
pocket4 = body.newObject("PartDesign::Pocket", "Pocket003")
pocket4.Profile = sketch8
pocket4.Type = "ThroughAll"
pocket4.Reversed = True

sketch9 = body.newObject("Sketcher::SketchObject", "Sketch008")
sketch9.AttachmentSupport = (doc.getObject("XY_Plane"), [""])
sketch9.MapMode = "FlatFace"
sketch9.AttachmentOffset = App.Placement(V(0, 0, 125), App.Rotation())
sketch9.addGeometry([
    Part.Circle(V(-175.5, -21, 0), V(0, 0, 1), 2.2),
    Part.Circle(V(-151.5, -9, 0), V(0, 0, 1), 2.2),
    Part.Circle(V(151.5, -9, 0), V(0, 0, 1), 2.2),
    Part.Circle(V(175.5, -21, 0), V(0, 0, 1), 2.2),
], False)
sketch9.addConstraint([
    Sketcher.Constraint("Equal", 0, 1),
    Sketcher.Constraint("Equal", 1, 2),
    Sketcher.Constraint("Equal", 2, 3),
    Sketcher.Constraint("Symmetric", 1, 3, 2, 3, -2),
    Sketcher.Constraint("Symmetric", 0, 3, 3, 3, -2),
    Sketcher.Constraint("Diameter", 0, 4.5),
    Sketcher.Constraint("DistanceY", 0, 3, -1, 1, 21.0),
    Sketcher.Constraint("DistanceY", 1, 3, -1, 1, 9.0),
    Sketcher.Constraint("DistanceX", 0, 3, 1, 3, 24.0),
    Sketcher.Constraint("DistanceX", 1, 3, 2, 3, 303.0),
])
sketch9.setExpression("Constraints[5]", "Params.sketch9_diameter")
pocket5 = body.newObject("PartDesign::Pocket", "Pocket004")
pocket5.Profile = sketch9
pocket5.Type = "ThroughAll"

sketch10 = body.newObject("Sketcher::SketchObject", "Sketch009")
sketch10.AttachmentSupport = (doc.getObject("YZ_Plane"), [""])
sketch10.MapMode = "FlatFace"
sketch10.AttachmentOffset = App.Placement(V(0, 0, -182.5), App.Rotation())
sketch10.addGeometry([
    Part.Circle(V(-9, -118, 0), V(0, 0, 1), 2.2),
    Part.Circle(V(-33, -118, 0), V(0, 0, 1), 2.2),
    Part.Circle(V(-9, 118, 0), V(0, 0, 1), 2.2),
    Part.Circle(V(-33, 118, 0), V(0, 0, 1), 2.2),
], False)
sketch10.addConstraint([
    Sketcher.Constraint("Equal", 0, 1),
    Sketcher.Constraint("Equal", 1, 2),
    Sketcher.Constraint("Equal", 2, 3),
    Sketcher.Constraint("Symmetric", 0, 3, 2, 3, -1),
    Sketcher.Constraint("Symmetric", 1, 3, 3, 3, -1),
    Sketcher.Constraint("Horizontal", 0, 3, 1, 3),
    Sketcher.Constraint("Diameter", 0, 4.5),
    Sketcher.Constraint("DistanceX", 0, 3, -1, 1, 9.0),
    Sketcher.Constraint("DistanceY", 0, 3, -1, 1, 118.0),
    Sketcher.Constraint("DistanceX", 1, 3, -1, 1, 33.0),
])
sketch10.setExpression("Constraints[6]", "Params.sketch10_diameter")
pocket6 = body.newObject("PartDesign::Pocket", "Pocket005")
pocket6.Profile = sketch10
pocket6.Type = "ThroughAll"
pocket6.Reversed = True

sketch11 = body.newObject("Sketcher::SketchObject", "Sketch010")
sketch11.AttachmentSupport = (doc.getObject("XZ_Plane"), [""])
sketch11.MapMode = "FlatFace"
sketch11.AttachmentOffset = App.Placement(V(0, 0, 2), App.Rotation())
sketch11.addGeometry([
    Part.LineSegment(V(138, 80, 0), V(110, 80, 0)),
    Part.ArcOfCircle(Part.Circle(V(110, 70, 0), V(0, 0, 1), 10), math.radians(90), math.radians(180)),
    Part.LineSegment(V(100, 70, 0), V(100, -70, 0)),
    Part.ArcOfCircle(Part.Circle(V(110, -70, 0), V(0, 0, 1), 10), math.radians(180), math.radians(270)),
    Part.LineSegment(V(110, -80, 0), V(138, -80, 0)),
    Part.ArcOfCircle(Part.Circle(V(138, -70, 0), V(0, 0, 1), 10), math.radians(-90), math.radians(0)),
    Part.LineSegment(V(148, -70, 0), V(148, 70, 0)),
    Part.ArcOfCircle(Part.Circle(V(138, 70, 0), V(0, 0, 1), 10), math.radians(0), math.radians(90)),
    Part.LineSegment(V(64, 80, 0), V(-138, 80, 0)),
    Part.ArcOfCircle(Part.Circle(V(-138, 70, 0), V(0, 0, 1), 10), math.radians(90), math.radians(180)),
    Part.LineSegment(V(-148, 70, 0), V(-148, -70, 0)),
    Part.ArcOfCircle(Part.Circle(V(-138, -70, 0), V(0, 0, 1), 10), math.radians(180), math.radians(270)),
    Part.LineSegment(V(-138, -80, 0), V(64, -80, 0)),
    Part.ArcOfCircle(Part.Circle(V(64, -70, 0), V(0, 0, 1), 10), math.radians(-90), math.radians(0)),
    Part.LineSegment(V(74, -70, 0), V(74, 70, 0)),
    Part.ArcOfCircle(Part.Circle(V(64, 70, 0), V(0, 0, 1), 10), math.radians(0), math.radians(90)),
], False)
sketch11.addConstraint([
    Sketcher.Constraint("Tangent", 0, 2, 1, 1),
    Sketcher.Constraint("Tangent", 1, 2, 2, 1),
    Sketcher.Constraint("Tangent", 2, 2, 3, 1),
    Sketcher.Constraint("Tangent", 3, 2, 4, 1),
    Sketcher.Constraint("Tangent", 4, 2, 5, 1),
    Sketcher.Constraint("Tangent", 5, 2, 6, 1),
    Sketcher.Constraint("Tangent", 6, 2, 7, 1),
    Sketcher.Constraint("Tangent", 7, 2, 0, 1),
    Sketcher.Constraint("Tangent", 8, 2, 9, 1),
    Sketcher.Constraint("Tangent", 9, 2, 10, 1),
    Sketcher.Constraint("Tangent", 10, 2, 11, 1),
    Sketcher.Constraint("Tangent", 11, 2, 12, 1),
    Sketcher.Constraint("Tangent", 12, 2, 13, 1),
    Sketcher.Constraint("Tangent", 13, 2, 14, 1),
    Sketcher.Constraint("Tangent", 14, 2, 15, 1),
    Sketcher.Constraint("Tangent", 15, 2, 8, 1),
    Sketcher.Constraint("Horizontal", 0),
    Sketcher.Constraint("Vertical", 2),
    Sketcher.Constraint("Horizontal", 4),
    Sketcher.Constraint("Vertical", 6),
    Sketcher.Constraint("Horizontal", 8),
    Sketcher.Constraint("Vertical", 10),
    Sketcher.Constraint("Horizontal", 12),
    Sketcher.Constraint("Vertical", 14),
    Sketcher.Constraint("Equal", 1, 3),
    Sketcher.Constraint("Equal", 3, 5),
    Sketcher.Constraint("Equal", 5, 7),
    Sketcher.Constraint("Equal", 7, 9),
    Sketcher.Constraint("Equal", 9, 11),
    Sketcher.Constraint("Equal", 11, 13),
    Sketcher.Constraint("Equal", 13, 15),
    Sketcher.Constraint("Symmetric", 5, 3, 9, 3, -1, 1),
    Sketcher.Constraint("Horizontal", 7, 3, 9, 3),
    Sketcher.Constraint("Horizontal", 5, 3, 11, 3),
    Sketcher.Constraint("Radius", 1, 10.0),
    Sketcher.Constraint("DistanceX", 0, 2, 0, 1, 28.0),
    Sketcher.Constraint("DistanceX", 8, 2, 8, 1, 202.0),
    Sketcher.Constraint("DistanceY", 2, 2, 2, 1, 140.0),
    Sketcher.Constraint("DistanceX", 9, 3, 1, 3, 247.0),
])
sketch11.setExpression("Constraints[34]", "Params.sketch11_radius")
sketch11.setExpression("Constraints[35]", "Params.sketch11_width")
sketch11.setExpression("Constraints[36]", "Params.sketch11_width2")
sketch11.setExpression("Constraints[37]", "Params.sketch11_height")
pocket7 = body.newObject("PartDesign::Pocket", "Pocket006")
pocket7.Profile = sketch11
pocket7.Type = "ThroughAll"

sketch12 = body.newObject("Sketcher::SketchObject", "Sketch011")
sketch12.AttachmentSupport = (doc.getObject("XY_Plane"), [""])
sketch12.MapMode = "FlatFace"
sketch12.AttachmentOffset = App.Placement(V(0, 0, -125), App.Rotation())
sketch12.addGeometry([
    Part.Circle(V(112.5, -10, 0), V(0, 0, 1), 3.5),
    Part.Circle(V(-112.5, -10, 0), V(0, 0, 1), 3.5),
    Part.Circle(V(51.5, -11, 0), V(0, 0, 1), 8),
], False)
sketch12.addConstraint([
    Sketcher.Constraint("Equal", 0, 1),
    Sketcher.Constraint("Symmetric", 0, 3, 1, 3, -2),
    Sketcher.Constraint("Diameter", 0, 7.0),
    Sketcher.Constraint("Diameter", 2, 16.0),
    Sketcher.Constraint("DistanceY", 0, 3, -1, 1, 10.0),
    Sketcher.Constraint("DistanceY", 2, 3, -1, 1, 11.0),
    Sketcher.Constraint("DistanceX", 1, 3, 0, 3, 225.0),
    Sketcher.Constraint("DistanceX", 2, 3, 0, 3, 61.0),
])
sketch12.setExpression("Constraints[2]", "Params.sketch12_diameter")
sketch12.setExpression("Constraints[3]", "Params.sketch12_diameter2")
pocket8 = body.newObject("PartDesign::Pocket", "Pocket007")
pocket8.Profile = sketch12
pocket8.setExpression("Length", "Params.pocket8_length")
pocket8.Reversed = True
doc.recompute()

fillet4 = body.newObject("PartDesign::Fillet", "Fillet003")
fillet4.Base = (pocket8, edges_at(pocket8, [
    (-32.5, -48, 169.5),
    (67.5, -48, 169.5),
    (-32.5, -48, -169.5),
    (67.5, -48, -169.5),
]))
fillet4.setExpression("Radius", "Params.fillet4_radius")

sketch13 = body.newObject("Sketcher::SketchObject", "Sketch012")
sketch13.AttachmentSupport = (doc.getObject("XZ_Plane"), [""])
sketch13.MapMode = "FlatFace"
sketch13.addGeometry([
    Part.Circle(V(109.5, 118, 0), V(0, 0, 1), 1.8),
    Part.Circle(V(109.5, 110, 0), V(0, 0, 1), 1.8),
    Part.Circle(V(-135.5, 118, 0), V(0, 0, 1), 1.8),
    Part.Circle(V(-135.5, 110, 0), V(0, 0, 1), 1.8),
    Part.Circle(V(70.5, -110, 0), V(0, 0, 1), 1.8),
    Part.Circle(V(70.5, -118, 0), V(0, 0, 1), 1.8),
    Part.Circle(V(90.5, 53.8, 0), V(0, 0, 1), 1.2),
    Part.Circle(V(90.5, 45.8, 0), V(0, 0, 1), 1.2),
], False)
sketch13.addConstraint([
    Sketcher.Constraint("Equal", 0, 1),
    Sketcher.Constraint("Equal", 1, 2),
    Sketcher.Constraint("Equal", 2, 3),
    Sketcher.Constraint("Equal", 3, 4),
    Sketcher.Constraint("Equal", 4, 5),
    Sketcher.Constraint("Equal", 6, 7),
    Sketcher.Constraint("Horizontal", 0, 3, 2, 3),
    Sketcher.Constraint("Horizontal", 1, 3, 3, 3),
    Sketcher.Constraint("Vertical", 0, 3, 1, 3),
    Sketcher.Constraint("Vertical", 2, 3, 3, 3),
    Sketcher.Constraint("Vertical", 4, 3, 5, 3),
    Sketcher.Constraint("Vertical", 6, 3, 7, 3),
    Sketcher.Constraint("Diameter", 0, 3.5),
    Sketcher.Constraint("Diameter", 6, 2.5),
    Sketcher.Constraint("DistanceY", -1, 1, 0, 3, 118.0),
    Sketcher.Constraint("DistanceY", -1, 1, 1, 3, 110.0),
    Sketcher.Constraint("DistanceY", 4, 3, -1, 1, 110.0),
    Sketcher.Constraint("DistanceY", 5, 3, -1, 1, 118.0),
    Sketcher.Constraint("DistanceX", 2, 3, 0, 3, 245.0),
    Sketcher.Constraint("DistanceX", 4, 3, 1, 3, 39.0),
    Sketcher.Constraint("DistanceX", 6, 3, 1, 3, 19.0),
    Sketcher.Constraint("DistanceY", 7, 3, 6, 3, 8.0),
    Sketcher.Constraint("DistanceX", -1, 1, 0, 3, 109.5),
    Sketcher.Constraint("DistanceY", -1, 1, 6, 3, 53.8),
])
sketch13.setExpression("Constraints[12]", "Params.sketch13_diameter")
sketch13.setExpression("Constraints[13]", "Params.sketch13_diameter2")
pocket9 = body.newObject("PartDesign::Pocket", "Pocket008")
pocket9.Profile = sketch13
pocket9.setExpression("Length", "Params.pocket9_length")
pocket9.Reversed = True

doc.recompute()
